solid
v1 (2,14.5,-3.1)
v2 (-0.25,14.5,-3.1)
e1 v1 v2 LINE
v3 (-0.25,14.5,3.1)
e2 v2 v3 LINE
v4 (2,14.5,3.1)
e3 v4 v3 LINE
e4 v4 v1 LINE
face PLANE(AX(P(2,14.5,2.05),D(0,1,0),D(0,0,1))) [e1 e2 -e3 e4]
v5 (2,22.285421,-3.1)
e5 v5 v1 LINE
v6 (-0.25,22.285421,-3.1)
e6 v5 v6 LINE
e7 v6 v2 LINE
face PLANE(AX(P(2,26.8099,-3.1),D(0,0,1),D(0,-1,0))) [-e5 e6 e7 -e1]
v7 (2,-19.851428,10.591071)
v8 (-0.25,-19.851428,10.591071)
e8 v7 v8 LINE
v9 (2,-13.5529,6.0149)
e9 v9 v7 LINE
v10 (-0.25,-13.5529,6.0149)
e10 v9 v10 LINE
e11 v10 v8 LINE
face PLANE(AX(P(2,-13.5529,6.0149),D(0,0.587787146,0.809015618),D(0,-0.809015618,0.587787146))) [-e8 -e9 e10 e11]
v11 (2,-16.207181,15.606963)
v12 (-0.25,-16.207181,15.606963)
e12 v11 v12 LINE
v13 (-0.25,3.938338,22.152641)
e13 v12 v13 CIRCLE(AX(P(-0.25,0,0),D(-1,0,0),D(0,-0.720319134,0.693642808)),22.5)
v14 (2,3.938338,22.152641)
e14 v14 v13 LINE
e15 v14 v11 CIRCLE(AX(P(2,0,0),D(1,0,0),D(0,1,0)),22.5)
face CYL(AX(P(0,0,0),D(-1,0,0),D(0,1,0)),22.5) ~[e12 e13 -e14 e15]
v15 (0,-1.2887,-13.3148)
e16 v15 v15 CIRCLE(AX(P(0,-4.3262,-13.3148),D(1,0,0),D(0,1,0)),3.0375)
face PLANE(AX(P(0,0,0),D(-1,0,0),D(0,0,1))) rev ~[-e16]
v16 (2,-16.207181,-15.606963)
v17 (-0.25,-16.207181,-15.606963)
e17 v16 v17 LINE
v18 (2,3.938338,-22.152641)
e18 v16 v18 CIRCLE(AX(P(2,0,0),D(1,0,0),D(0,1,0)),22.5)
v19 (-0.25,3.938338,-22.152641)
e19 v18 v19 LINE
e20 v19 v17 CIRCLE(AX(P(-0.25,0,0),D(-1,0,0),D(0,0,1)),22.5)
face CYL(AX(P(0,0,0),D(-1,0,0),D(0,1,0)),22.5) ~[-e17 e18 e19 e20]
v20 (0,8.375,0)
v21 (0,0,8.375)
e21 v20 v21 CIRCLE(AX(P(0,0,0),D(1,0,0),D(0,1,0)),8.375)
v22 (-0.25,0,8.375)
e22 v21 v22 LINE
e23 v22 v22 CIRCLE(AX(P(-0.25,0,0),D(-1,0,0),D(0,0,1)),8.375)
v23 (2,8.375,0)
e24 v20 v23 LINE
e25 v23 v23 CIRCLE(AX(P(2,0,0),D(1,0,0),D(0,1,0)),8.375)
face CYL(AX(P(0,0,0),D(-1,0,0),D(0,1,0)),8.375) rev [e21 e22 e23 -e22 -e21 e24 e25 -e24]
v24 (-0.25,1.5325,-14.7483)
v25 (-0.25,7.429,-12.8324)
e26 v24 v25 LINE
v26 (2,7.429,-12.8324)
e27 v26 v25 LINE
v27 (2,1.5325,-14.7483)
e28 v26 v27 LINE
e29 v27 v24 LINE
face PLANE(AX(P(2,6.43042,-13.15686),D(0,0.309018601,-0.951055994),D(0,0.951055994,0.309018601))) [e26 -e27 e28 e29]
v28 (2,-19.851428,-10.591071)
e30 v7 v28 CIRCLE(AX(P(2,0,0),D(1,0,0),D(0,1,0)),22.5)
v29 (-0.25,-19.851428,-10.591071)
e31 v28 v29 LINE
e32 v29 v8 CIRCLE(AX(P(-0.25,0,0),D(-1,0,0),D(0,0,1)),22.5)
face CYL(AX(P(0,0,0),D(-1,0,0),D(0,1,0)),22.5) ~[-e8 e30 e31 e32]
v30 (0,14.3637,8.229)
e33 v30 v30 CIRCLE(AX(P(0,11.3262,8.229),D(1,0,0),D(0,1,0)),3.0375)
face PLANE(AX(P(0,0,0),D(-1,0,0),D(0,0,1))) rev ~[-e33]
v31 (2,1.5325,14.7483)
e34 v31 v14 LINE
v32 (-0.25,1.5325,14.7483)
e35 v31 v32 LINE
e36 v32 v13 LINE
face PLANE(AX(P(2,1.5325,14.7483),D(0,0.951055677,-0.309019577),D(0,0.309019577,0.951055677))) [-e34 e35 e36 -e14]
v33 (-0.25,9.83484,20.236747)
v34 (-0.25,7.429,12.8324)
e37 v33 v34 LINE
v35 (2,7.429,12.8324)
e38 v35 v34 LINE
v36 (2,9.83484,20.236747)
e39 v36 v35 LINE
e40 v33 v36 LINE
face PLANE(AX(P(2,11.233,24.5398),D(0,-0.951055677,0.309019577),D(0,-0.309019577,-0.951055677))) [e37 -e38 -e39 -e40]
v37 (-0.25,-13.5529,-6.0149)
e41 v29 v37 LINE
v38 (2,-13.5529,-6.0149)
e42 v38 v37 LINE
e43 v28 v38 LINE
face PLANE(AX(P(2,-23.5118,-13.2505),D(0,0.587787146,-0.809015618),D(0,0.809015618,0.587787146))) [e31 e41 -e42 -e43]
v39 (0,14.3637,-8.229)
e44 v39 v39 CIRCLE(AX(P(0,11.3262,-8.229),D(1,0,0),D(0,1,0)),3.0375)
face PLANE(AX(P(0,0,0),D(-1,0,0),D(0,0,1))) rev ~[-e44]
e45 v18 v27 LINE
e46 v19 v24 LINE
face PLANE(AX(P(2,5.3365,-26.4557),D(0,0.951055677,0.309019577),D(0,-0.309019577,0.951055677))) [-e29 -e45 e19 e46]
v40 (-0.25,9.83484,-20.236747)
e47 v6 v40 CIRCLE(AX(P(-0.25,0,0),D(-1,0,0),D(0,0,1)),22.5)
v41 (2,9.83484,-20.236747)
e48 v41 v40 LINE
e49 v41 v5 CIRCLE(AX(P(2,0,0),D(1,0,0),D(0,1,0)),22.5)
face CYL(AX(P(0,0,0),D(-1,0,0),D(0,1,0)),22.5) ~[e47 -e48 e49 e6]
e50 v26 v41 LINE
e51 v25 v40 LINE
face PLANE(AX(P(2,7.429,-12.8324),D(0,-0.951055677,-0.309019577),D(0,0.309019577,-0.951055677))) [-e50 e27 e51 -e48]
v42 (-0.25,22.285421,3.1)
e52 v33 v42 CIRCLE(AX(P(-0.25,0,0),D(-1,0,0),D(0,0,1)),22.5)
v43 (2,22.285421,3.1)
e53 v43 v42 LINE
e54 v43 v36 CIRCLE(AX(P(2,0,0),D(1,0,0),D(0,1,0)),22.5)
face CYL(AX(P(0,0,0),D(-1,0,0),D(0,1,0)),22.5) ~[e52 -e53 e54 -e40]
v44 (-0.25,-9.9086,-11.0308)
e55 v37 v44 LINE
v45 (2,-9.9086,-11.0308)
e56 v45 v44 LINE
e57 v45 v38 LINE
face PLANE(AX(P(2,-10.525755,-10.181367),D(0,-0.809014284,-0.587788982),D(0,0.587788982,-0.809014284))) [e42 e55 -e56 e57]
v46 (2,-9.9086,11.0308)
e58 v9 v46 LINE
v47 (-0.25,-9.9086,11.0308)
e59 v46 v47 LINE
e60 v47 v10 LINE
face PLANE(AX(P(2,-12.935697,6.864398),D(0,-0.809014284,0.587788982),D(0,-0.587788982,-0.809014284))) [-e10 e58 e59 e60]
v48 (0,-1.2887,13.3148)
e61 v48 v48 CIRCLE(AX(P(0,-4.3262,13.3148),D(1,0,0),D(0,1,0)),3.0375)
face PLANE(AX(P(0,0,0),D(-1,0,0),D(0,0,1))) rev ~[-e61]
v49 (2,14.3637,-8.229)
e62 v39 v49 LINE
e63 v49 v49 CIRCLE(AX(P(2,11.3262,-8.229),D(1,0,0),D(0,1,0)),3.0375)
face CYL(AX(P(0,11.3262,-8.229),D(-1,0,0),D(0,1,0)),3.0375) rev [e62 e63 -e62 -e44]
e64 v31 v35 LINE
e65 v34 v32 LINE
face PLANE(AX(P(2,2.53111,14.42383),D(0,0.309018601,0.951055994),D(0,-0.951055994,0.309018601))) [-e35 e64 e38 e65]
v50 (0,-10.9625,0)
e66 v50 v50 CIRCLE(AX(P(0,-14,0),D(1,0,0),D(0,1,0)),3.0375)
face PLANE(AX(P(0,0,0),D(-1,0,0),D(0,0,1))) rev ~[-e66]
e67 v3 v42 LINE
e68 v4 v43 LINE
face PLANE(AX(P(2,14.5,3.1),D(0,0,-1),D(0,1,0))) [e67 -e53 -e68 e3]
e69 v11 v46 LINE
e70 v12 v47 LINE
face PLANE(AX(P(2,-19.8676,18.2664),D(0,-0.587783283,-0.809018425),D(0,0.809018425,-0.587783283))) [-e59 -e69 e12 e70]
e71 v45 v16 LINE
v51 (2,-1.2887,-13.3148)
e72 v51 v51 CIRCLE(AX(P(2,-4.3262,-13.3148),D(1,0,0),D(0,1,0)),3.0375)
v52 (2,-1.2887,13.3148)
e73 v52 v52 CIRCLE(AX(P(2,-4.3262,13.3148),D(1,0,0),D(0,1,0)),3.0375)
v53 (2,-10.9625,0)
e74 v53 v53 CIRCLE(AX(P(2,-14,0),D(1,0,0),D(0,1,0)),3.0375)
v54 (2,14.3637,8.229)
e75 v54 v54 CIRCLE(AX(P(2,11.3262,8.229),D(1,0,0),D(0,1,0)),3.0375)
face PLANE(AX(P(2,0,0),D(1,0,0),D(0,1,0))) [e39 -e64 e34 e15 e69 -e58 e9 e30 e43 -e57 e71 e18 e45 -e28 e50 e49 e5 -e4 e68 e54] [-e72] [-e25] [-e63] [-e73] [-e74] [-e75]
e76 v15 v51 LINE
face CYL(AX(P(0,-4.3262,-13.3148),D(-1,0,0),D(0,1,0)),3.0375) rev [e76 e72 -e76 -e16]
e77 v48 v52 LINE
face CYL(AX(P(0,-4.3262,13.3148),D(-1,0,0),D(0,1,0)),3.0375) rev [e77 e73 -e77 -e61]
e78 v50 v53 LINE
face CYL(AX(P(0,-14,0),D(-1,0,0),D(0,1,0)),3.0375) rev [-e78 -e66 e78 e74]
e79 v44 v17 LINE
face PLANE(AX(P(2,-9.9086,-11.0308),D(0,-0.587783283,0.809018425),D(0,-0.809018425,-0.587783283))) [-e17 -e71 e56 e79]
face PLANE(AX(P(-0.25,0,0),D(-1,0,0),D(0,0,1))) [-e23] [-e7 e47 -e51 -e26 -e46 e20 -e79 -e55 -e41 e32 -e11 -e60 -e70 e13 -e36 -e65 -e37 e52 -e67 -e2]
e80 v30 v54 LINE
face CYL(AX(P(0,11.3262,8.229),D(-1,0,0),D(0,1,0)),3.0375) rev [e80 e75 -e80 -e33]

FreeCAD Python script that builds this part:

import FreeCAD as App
import Part
import Sketcher
from FreeCAD import Vector
Q = App.Units.Quantity


def add_polygon(sketch, points):
    """Adds a closed chain of lines whose ends are joined by coincident constraints."""
    first, n = sketch.GeometryCount, len(points)
    for a, b in zip(points, points[1:] + points[:1]):
        sketch.addGeometry(Part.LineSegment(App.Vector(*a, 0), App.Vector(*b, 0)), False)
    for i in range(n):
        sketch.addConstraint(Sketcher.Constraint("Coincident", first + i, 2, first + (i + 1) % n, 1))

doc = App.newDocument("Part")
body = doc.addObject("PartDesign::Body", "Body")

# Sketch on YZ plane
sketch1 = body.newObject("Sketcher::SketchObject", "Sketch")
sketch1.AttachmentSupport = (doc.getObject("YZ_Plane"), [""])
sketch1.MapMode = "FlatFace"
sketch1.addGeometry([
    Part.Circle(Vector(0, 0, 0), Vector(0, 0, 1), 22.5),  # 0
    Part.Circle(Vector(-4.3, -13.3, 0), Vector(0, 0, 1), 3),  # 1
    Part.Circle(Vector(11.3, -8.2, 0), Vector(0, 0, 1), 3),  # 2
    Part.Circle(Vector(-14, 0, 0), Vector(0, 0, 1), 3),  # 3
    Part.Circle(Vector(-4.3, 13.3, 0), Vector(0, 0, 1), 3),  # 4
    Part.Circle(Vector(0, 0, 0), Vector(0, 0, 1), 8.4),  # 5
    Part.Circle(Vector(11.3, 8.2, 0), Vector(0, 0, 1), 3),  # 6
], False)
sketch1.addConstraint([
    Sketcher.Constraint("Coincident", 0, 3, -1, 1),
    Sketcher.Constraint("Coincident", 5, 3, -1, 1),
    Sketcher.Constraint("Equal", 1, 2),
    Sketcher.Constraint("Equal", 2, 3),
    Sketcher.Constraint("Equal", 3, 4),
    Sketcher.Constraint("Equal", 4, 6),
    Sketcher.Constraint("Symmetric", 1, 3, 4, 3, -1),
    Sketcher.Constraint("Symmetric", 2, 3, 6, 3, -1),
    Sketcher.Constraint("PointOnObject", 3, 3, -1),
    Sketcher.Constraint("Diameter", 0, 45.0),
    Sketcher.Constraint("Diameter", 5, 16.75),
    Sketcher.Constraint("Diameter", 1, 6.075),
    Sketcher.Constraint("DistanceX", 3, 3, -1, 1, 14.0),
    Sketcher.Constraint("DistanceY", 2, 3, -1, 1, 8.229),
    Sketcher.Constraint("DistanceX", 1, 3, -1, 1, 4.3262),
    Sketcher.Constraint("DistanceY", 1, 3, -1, 1, 13.3148),
    Sketcher.Constraint("DistanceX", -1, 1, 2, 3, 11.3262),
])
pad1 = body.newObject("PartDesign::Pad", "Pad")
pad1.Profile = sketch1
pad1.Length = 2

# Sketch on YZ plane
sketch2 = body.newObject("Sketcher::SketchObject", "Sketch001")
sketch2.AttachmentSupport = (doc.getObject("YZ_Plane"), [""])
sketch2.MapMode = "FlatFace"
sketch2.addGeometry([
    Part.Circle(Vector(0, 0, 0), Vector(0, 0, 1), 22),
    Part.Circle(Vector(0, 0, 0), Vector(0, 0, 1), 8),
], False)
sketch2.addConstraint([
    Sketcher.Constraint("Coincident", 0, 3, -1, 1),
    Sketcher.Constraint("Coincident", 1, 3, -1, 1),
    Sketcher.Constraint("Diameter", 0, 45.0),
    Sketcher.Constraint("Diameter", 1, 16.75),
])
pad2 = body.newObject("PartDesign::Pad", "Pad001")
pad2.Profile = sketch2
pad2.Length = 0.25
pad2.Reversed = True

# Sketch on YZ plane
sketch3 = body.newObject("Sketcher::SketchObject", "Sketch002")
sketch3.AttachmentSupport = (doc.getObject("YZ_Plane"), [""])
sketch3.MapMode = "FlatFace"
sketch3.AttachmentOffset = App.Placement(Vector(0, 0, 2), App.Rotation())
add_polygon(sketch3, [(27, 3), (14, 3), (14, -3), (27, -3)])  # lines 0-3
add_polygon(sketch3, [(5, 26), (2, 15), (7, 13), (11, 25)])  # lines 4-7
add_polygon(sketch3, [(-24, 13), (-14, 6), (-10, 11), (-20, 18)])  # lines 8-11
add_polygon(sketch3, [(-20, -18), (-10, -11), (-14, -6), (-24, -13)])  # lines 12-15
add_polygon(sketch3, [(11, -25), (7, -13), (2, -15), (5, -26)])  # lines 16-19
sketch3.addConstraint([
    Sketcher.Constraint("Horizontal", 0),
    Sketcher.Constraint("Vertical", 1),
    Sketcher.Constraint("Horizontal", 2),
    Sketcher.Constraint("Vertical", 3),
    Sketcher.Constraint("Symmetric", 9, 2, 12, 2, -1),
    Sketcher.Constraint("Symmetric", 8, 2, 13, 2, -1),
    Sketcher.Constraint("Symmetric", 11, 2, 14, 2, -1),
    Sketcher.Constraint("Symmetric", 10, 2, 15, 2, -1),
    Sketcher.Constraint("Symmetric", 5, 2, 16, 2, -1),
    Sketcher.Constraint("Symmetric", 4, 2, 17, 2, -1),
    Sketcher.Constraint("Symmetric", 7, 2, 18, 2, -1),
    Sketcher.Constraint("Symmetric", 6, 2, 19, 2, -1),
    Sketcher.Constraint("Perpendicular", 4, 5),
    Sketcher.Constraint("Perpendicular", 5, 6),
    Sketcher.Constraint("Perpendicular", 6, 7),
    Sketcher.Constraint("Perpendicular", 8, 9),
    Sketcher.Constraint("Perpendicular", 9, 10),
    Sketcher.Constraint("Perpendicular", 10, 11),
    Sketcher.Constraint("Equal", 6, 8),
    Sketcher.Constraint("Equal", 7, 9),
    Sketcher.Constraint("DistanceY", 1, 2, 1, 1, 6.2),
    Sketcher.Constraint("Distance", 5, 6.2),
    Sketcher.Constraint("DistanceY", -1, 1, 0, 2, 3.1),
    Sketcher.Constraint("Angle", 4, Q("-108.0002 deg")),
    Sketcher.Constraint("Angle", 8, Q("-36.0001 deg")),
    Sketcher.Constraint("DistanceX", 0, 2, 0, 1, 12.31),
    Sketcher.Constraint("DistanceX", -1, 1, 0, 2, 14.5),
    Sketcher.Constraint("DistanceX", 10, 2, 4, 2, 21.4),
    Sketcher.Constraint("Distance", 4, 12.31),
    Sketcher.Constraint("DistanceX", -1, 1, 5, 2, 7.429),
    Sketcher.Constraint("DistanceY", -1, 1, 8, 2, 6.015),
    Sketcher.Constraint("DistanceY", 9, 2, 7, 2, 15.425),
])
pocket1 = body.newObject("PartDesign::Pocket", "Pocket")
pocket1.Profile = sketch3
pocket1.Length = 2.25

doc.recompute()
